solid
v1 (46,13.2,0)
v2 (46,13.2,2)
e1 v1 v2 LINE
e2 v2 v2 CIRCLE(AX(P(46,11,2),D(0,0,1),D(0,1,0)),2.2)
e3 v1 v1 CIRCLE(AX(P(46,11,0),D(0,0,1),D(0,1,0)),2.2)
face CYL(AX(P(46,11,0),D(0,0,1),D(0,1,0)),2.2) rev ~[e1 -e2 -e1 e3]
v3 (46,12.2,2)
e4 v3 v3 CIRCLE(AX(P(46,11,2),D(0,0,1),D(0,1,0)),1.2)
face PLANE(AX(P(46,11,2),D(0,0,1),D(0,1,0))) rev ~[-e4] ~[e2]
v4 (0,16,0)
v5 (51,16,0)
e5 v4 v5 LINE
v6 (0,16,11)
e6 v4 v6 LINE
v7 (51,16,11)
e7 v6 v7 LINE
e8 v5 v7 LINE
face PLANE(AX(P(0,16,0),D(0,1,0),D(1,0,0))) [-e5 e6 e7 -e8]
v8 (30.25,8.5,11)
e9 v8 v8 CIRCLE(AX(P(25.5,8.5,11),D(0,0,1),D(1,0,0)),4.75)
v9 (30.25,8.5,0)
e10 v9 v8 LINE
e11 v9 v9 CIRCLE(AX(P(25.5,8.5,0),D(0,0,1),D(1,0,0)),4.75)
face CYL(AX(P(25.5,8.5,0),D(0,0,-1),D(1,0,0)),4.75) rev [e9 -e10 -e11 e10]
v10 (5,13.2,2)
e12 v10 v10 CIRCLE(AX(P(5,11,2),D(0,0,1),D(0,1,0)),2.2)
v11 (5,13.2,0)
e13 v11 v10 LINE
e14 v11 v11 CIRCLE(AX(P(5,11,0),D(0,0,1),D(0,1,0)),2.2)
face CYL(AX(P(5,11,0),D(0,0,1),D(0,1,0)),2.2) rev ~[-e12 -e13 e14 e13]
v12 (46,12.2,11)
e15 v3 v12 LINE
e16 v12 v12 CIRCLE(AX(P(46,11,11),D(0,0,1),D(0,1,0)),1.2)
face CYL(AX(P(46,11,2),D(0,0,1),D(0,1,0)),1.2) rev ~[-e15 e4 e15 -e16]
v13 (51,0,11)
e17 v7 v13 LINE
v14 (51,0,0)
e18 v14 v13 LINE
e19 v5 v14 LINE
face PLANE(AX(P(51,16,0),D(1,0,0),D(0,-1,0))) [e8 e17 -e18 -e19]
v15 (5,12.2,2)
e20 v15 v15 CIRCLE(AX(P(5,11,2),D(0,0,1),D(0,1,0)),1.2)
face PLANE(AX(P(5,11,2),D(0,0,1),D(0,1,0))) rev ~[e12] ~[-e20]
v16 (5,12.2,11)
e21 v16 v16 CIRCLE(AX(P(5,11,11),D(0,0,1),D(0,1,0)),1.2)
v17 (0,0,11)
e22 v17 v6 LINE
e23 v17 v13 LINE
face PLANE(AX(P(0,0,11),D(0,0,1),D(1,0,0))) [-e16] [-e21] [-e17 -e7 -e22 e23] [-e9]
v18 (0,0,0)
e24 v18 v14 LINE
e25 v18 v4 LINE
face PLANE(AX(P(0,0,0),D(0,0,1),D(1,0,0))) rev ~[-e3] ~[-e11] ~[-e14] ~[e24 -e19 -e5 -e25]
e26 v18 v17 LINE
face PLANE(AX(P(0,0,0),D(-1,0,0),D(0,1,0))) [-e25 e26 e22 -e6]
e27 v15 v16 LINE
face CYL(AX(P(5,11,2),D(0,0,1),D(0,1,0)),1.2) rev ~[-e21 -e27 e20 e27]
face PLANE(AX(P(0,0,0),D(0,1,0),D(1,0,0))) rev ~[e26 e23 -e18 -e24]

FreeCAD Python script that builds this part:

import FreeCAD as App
import Part
import Sketcher
from FreeCAD import Vector
Q = App.Units.Quantity


def add_polygon(sketch, points):
    """Adds a closed chain of lines whose ends are joined by coincident constraints."""
    first, n = sketch.GeometryCount, len(points)
    for a, b in zip(points, points[1:] + points[:1]):
        sketch.addGeometry(Part.LineSegment(App.Vector(*a, 0), App.Vector(*b, 0)), False)
    for i in range(n):
        sketch.addConstraint(Sketcher.Constraint("Coincident", first + i, 2, first + (i + 1) % n, 1))

doc = App.newDocument("Part")
params = doc.addObject("Spreadsheet::Sheet", "Params")
for row, (alias, value) in enumerate([
    ("sketch1_diameter", "9.5 mm"),
    ("sketch1_width", "51 mm"),
    ("sketch1_height", "16 mm"),
    ("pad1_length", "11 mm"),
    ("sketch2_diameter", "2.4 mm"),
    ("hole_diameter", "2.4 mm"),
    ("hole_cbore_diameter", "4.4 mm"),
    ("hole_cbore_depth", "2 mm"),
], start=1):
    params.set(f"A{row}", alias)
    params.set(f"B{row}", "=" + value)
    params.setAlias(f"B{row}", alias)

body = doc.addObject("PartDesign::Body", "Body")

sketch1 = body.newObject("Sketcher::SketchObject", "Sketch")
sketch1.AttachmentSupport = (doc.getObject("XY_Plane"), [""])
sketch1.MapMode = "FlatFace"
add_polygon(sketch1, [(0, 16), (0, 0), (51, 0), (51, 16)])
sketch1.addGeometry(Part.Circle(Vector(25.5, 8.5, 0), Vector(0, 0, 1), 4.8), False)
sketch1.addConstraint([
    Sketcher.Constraint("Vertical", 0),
    Sketcher.Constraint("Horizontal", 1),
    Sketcher.Constraint("Vertical", 2),
    Sketcher.Constraint("Horizontal", 3),
    Sketcher.Constraint("Coincident", 0, 2, -1, 1),
    Sketcher.Constraint("Diameter", 4, Q("9.5 mm")),
    Sketcher.Constraint("DistanceX", 1, 1, 1, 2, Q("51 mm")),
    Sketcher.Constraint("DistanceY", 0, 2, 0, 1, Q("16 mm")),
    Sketcher.Constraint("DistanceY", -1, 1, 4, 3, Q("8.5 mm")),
    Sketcher.Constraint("DistanceX", -1, 1, 4, 3, Q("25.5 mm")),
])
sketch1.setExpression("Constraints[9]", "Params.sketch1_diameter")
sketch1.setExpression("Constraints[10]", "Params.sketch1_width")
sketch1.setExpression("Constraints[11]", "Params.sketch1_height")
pad1 = body.newObject("PartDesign::Pad", "Pad")
pad1.Profile = sketch1
pad1.setExpression("Length", "Params.pad1_length")

sketch2 = body.newObject("Sketcher::SketchObject", "Sketch001")
sketch2.AttachmentSupport = (doc.getObject("XY_Plane"), [""])
sketch2.MapMode = "FlatFace"
sketch2.addGeometry([
    Part.Circle(Vector(46, 11, 0), Vector(0, 0, 1), 1.2),
    Part.Circle(Vector(5, 11, 0), Vector(0, 0, 1), 1.2),
], False)
sketch2.addConstraint([
    Sketcher.Constraint("Equal", 0, 1),
    Sketcher.Constraint("Horizontal", 0, 3, 1, 3),
    Sketcher.Constraint("Diameter", 0, Q("2.4 mm")),
    Sketcher.Constraint("DistanceX", -1, 1, 0, 3, Q("46 mm")),
    Sketcher.Constraint("DistanceY", -1, 1, 0, 3, Q("11 mm")),
    Sketcher.Constraint("DistanceX", -1, 1, 1, 3, Q("5 mm")),
])
sketch2.setExpression("Constraints[2]", "Params.sketch2_diameter")
doc.recompute()
hole = body.newObject("PartDesign::Hole", "Hole")
hole.Profile = sketch2
hole.ThreadType = "None"
hole.setExpression("Diameter", "Params.hole_diameter")
hole.DepthType = "ThroughAll"
hole.HoleCutType = "Counterbore"
hole.setExpression("HoleCutDiameter", "Params.hole_cbore_diameter")
hole.setExpression("HoleCutDepth", "Params.hole_cbore_depth")
hole.Reversed = True

doc.recompute()
